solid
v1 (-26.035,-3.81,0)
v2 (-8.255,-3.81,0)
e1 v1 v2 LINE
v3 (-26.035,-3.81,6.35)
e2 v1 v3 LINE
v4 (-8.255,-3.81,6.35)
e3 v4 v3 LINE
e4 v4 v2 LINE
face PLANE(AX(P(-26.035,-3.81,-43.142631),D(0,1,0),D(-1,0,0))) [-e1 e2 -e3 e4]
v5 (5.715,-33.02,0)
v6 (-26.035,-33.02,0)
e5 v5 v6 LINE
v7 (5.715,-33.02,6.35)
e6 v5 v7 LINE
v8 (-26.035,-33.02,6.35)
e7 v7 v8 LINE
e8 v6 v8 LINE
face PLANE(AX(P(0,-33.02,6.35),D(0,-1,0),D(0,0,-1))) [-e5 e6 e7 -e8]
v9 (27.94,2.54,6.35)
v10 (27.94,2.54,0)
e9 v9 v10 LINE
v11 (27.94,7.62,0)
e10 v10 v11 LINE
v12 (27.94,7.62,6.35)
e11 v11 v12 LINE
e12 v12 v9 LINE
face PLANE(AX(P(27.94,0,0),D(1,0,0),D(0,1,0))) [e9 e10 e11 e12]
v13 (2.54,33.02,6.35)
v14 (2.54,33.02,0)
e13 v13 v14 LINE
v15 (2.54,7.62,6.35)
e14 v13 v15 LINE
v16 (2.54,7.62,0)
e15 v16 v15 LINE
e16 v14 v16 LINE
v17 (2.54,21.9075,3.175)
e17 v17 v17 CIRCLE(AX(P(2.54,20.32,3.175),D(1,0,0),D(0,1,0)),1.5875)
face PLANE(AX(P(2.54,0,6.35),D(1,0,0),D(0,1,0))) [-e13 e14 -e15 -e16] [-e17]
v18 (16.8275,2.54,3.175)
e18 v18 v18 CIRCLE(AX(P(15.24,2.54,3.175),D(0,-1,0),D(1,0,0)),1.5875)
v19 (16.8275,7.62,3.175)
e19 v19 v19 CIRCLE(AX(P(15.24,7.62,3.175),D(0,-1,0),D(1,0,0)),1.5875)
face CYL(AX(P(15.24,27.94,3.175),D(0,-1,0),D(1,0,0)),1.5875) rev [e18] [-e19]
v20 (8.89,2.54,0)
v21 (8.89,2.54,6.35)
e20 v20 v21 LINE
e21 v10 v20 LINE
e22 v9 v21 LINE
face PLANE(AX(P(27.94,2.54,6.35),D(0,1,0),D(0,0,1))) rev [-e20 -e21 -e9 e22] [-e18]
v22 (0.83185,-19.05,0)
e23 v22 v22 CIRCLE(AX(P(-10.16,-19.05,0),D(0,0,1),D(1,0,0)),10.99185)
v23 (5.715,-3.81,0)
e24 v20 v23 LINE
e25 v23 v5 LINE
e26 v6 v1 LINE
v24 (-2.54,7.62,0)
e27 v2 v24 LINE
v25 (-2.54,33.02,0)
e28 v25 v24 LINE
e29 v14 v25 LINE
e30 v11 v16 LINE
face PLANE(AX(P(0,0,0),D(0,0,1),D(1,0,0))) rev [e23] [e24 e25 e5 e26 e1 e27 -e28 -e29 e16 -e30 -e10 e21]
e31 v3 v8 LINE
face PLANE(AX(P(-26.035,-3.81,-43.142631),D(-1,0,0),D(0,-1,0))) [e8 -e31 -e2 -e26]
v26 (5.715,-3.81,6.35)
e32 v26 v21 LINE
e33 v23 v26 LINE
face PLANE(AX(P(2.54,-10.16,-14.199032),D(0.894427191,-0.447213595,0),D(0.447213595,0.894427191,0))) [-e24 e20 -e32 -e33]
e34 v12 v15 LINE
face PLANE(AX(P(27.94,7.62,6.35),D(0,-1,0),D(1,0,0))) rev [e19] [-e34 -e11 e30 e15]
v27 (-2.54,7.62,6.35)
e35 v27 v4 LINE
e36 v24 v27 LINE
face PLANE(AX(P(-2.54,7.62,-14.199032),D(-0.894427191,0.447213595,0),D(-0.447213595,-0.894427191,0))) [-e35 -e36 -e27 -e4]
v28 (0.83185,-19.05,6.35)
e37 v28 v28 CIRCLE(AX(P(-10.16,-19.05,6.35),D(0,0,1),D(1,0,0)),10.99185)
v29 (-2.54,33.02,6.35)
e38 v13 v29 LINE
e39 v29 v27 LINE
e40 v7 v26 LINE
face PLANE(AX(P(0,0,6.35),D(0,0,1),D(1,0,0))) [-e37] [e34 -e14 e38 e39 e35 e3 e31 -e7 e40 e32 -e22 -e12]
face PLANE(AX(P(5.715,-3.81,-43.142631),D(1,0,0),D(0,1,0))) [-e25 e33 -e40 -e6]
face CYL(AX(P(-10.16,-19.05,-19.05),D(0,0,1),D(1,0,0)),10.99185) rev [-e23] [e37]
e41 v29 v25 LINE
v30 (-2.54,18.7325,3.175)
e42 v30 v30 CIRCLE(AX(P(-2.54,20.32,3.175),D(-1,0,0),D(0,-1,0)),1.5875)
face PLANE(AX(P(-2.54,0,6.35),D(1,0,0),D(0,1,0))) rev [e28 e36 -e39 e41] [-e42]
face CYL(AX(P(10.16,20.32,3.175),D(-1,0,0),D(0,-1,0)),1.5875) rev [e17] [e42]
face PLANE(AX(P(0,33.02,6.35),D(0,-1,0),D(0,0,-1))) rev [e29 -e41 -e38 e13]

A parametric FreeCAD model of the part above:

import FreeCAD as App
import Part
import Sketcher
from FreeCAD import Vector
Q = App.Units.Quantity


def add_polygon(sketch, points):
    """Adds a closed chain of lines whose ends are joined by coincident constraints."""
    first, n = sketch.GeometryCount, len(points)
    for a, b in zip(points, points[1:] + points[:1]):
        sketch.addGeometry(Part.LineSegment(App.Vector(*a, 0), App.Vector(*b, 0)), False)
    for i in range(n):
        sketch.addConstraint(Sketcher.Constraint("Coincident", first + i, 2, first + (i + 1) % n, 1))

doc = App.newDocument("Part")
body = doc.addObject("PartDesign::Body", "Body")

# Sketch on XY plane
sketch1 = body.newObject("Sketcher::SketchObject", "Sketch")
sketch1.AttachmentSupport = (doc.getObject("XY_Plane"), [""])
sketch1.MapMode = "FlatFace"
add_polygon(sketch1, [(-30.48, -5.08), (-30.48, -33.02), (2.54, -33.02), (2.54, 33.02), (-2.54, 33.02), (-2.54, -5.08)])  # lines 0-5
sketch1.addConstraint(Sketcher.Constraint("Vertical", 0))
sketch1.addConstraint(Sketcher.Constraint("Horizontal", 1))
sketch1.addConstraint(Sketcher.Constraint("Vertical", 2))
sketch1.addConstraint(Sketcher.Constraint("Horizontal", 3))
sketch1.addConstraint(Sketcher.Constraint("Vertical", 4))
sketch1.addConstraint(Sketcher.Constraint("Horizontal", 5))
sketch1.addConstraint(Sketcher.Constraint("Symmetric", 1, 2, 3, 2, -1, 1))
sketch1.addConstraint(Sketcher.Constraint("Equal", 5, 0))
sketch1.addConstraint(Sketcher.Constraint("DistanceX", 1, 1, 1, 2, Q("1.3 in")))
sketch1.addConstraint(Sketcher.Constraint("DistanceX", 3, 2, 3, 1, Q("0.2 in")))
sketch1.addConstraint(Sketcher.Constraint("DistanceY", 2, 1, 2, 2, Q("2.6 in")))
pad1 = body.newObject("PartDesign::Pad", "Pad")
pad1.Profile = sketch1
pad1.Length = Q("0.25 in")

# Sketch on YZ plane
sketch2 = body.newObject("Sketcher::SketchObject", "Sketch001")
sketch2.AttachmentSupport = (doc.getObject("YZ_Plane"), [""])
sketch2.MapMode = "FlatFace"
sketch2.AttachmentOffset = App.Placement(Vector(0, 0, -0.1 * 25.4), App.Rotation())
sketch2.addGeometry(Part.Circle(Vector(20.32, 3.175, 0), Vector(0, 0, 1), 1.5875), False)
sketch2.addConstraint(Sketcher.Constraint("Diameter", 0, Q("0.125 in")))
sketch2.addConstraint(Sketcher.Constraint("DistanceX", -1, 1, 0, 3, Q("0.8 in")))
sketch2.addConstraint(Sketcher.Constraint("DistanceY", -1, 1, 0, 3, Q("0.125 in")))
pocket1 = body.newObject("PartDesign::Pocket", "Pocket")
pocket1.Profile = sketch2
pocket1.Length = Q("0.5 in")
pocket1.Reversed = True

# Sketch on YZ plane
sketch3 = body.newObject("Sketcher::SketchObject", "Sketch002")
sketch3.AttachmentSupport = (doc.getObject("YZ_Plane"), [""])
sketch3.MapMode = "FlatFace"
sketch3.AttachmentOffset = App.Placement(Vector(0, 0, 0.1 * 25.4), App.Rotation())
add_polygon(sketch3, [(7.62, 6.35), (2.54, 6.35), (2.54, 0), (7.62, 0)])  # lines 0-3
sketch3.addConstraint(Sketcher.Constraint("Horizontal", 0))
sketch3.addConstraint(Sketcher.Constraint("Vertical", 1))
sketch3.addConstraint(Sketcher.Constraint("Horizontal", 2))
sketch3.addConstraint(Sketcher.Constraint("Vertical", 3))
sketch3.addConstraint(Sketcher.Constraint("PointOnObject", 1, 2, -1))
sketch3.addConstraint(Sketcher.Constraint("DistanceX", 0, 2, 0, 1, Q("0.2 in")))
sketch3.addConstraint(Sketcher.Constraint("DistanceY", 1, 2, 1, 1, Q("0.25 in")))
sketch3.addConstraint(Sketcher.Constraint("DistanceX", -1, 1, 0, 2, Q("0.1 in")))
pad2 = body.newObject("PartDesign::Pad", "Pad001")
pad2.Profile = sketch3
pad2.Length = Q("1 in")

# Sketch on XZ plane
sketch4 = body.newObject("Sketcher::SketchObject", "Sketch003")
sketch4.AttachmentSupport = (doc.getObject("XZ_Plane"), [""])
sketch4.MapMode = "FlatFace"
sketch4.AttachmentOffset = App.Placement(Vector(0, 0, -0.1 * 25.4), App.Rotation())
sketch4.addGeometry(Part.Circle(Vector(15.24, 3.175, 0), Vector(0, 0, 1), 1.5875), False)
sketch4.addConstraint(Sketcher.Constraint("Diameter", 0, Q("0.125 in")))
sketch4.addConstraint(Sketcher.Constraint("DistanceX", -1, 1, 0, 3, Q("0.6 in")))
sketch4.addConstraint(Sketcher.Constraint("DistanceY", -1, 1, 0, 3, Q("0.125 in")))
pocket2 = body.newObject("PartDesign::Pocket", "Pocket001")
pocket2.Profile = sketch4
pocket2.Length = Q("1 in")

# Sketch on XY plane
sketch5 = body.newObject("Sketcher::SketchObject", "Sketch004")
sketch5.AttachmentSupport = (doc.getObject("XY_Plane"), [""])
sketch5.MapMode = "FlatFace"
sketch5.AttachmentOffset = App.Placement(Vector(0, 0, 0.25 * 25.4), App.Rotation())
sketch5.addGeometry(Part.Circle(Vector(-10.16, -19.05, 0), Vector(0, 0, 1), 10.99185), False)
sketch5.addConstraint(Sketcher.Constraint("Diameter", 0, Q("0.8655 in")))
sketch5.addConstraint(Sketcher.Constraint("DistanceX", 0, 3, -1, 1, Q("0.4 in")))
sketch5.addConstraint(Sketcher.Constraint("DistanceY", 0, 3, -1, 1, Q("0.75 in")))
pocket3 = body.newObject("PartDesign::Pocket", "Pocket002")
pocket3.Profile = sketch5
pocket3.Length = Q("1 in")

# Sketch on XY plane
sketch6 = body.newObject("Sketcher::SketchObject", "Sketch005")
sketch6.AttachmentSupport = (doc.getObject("XY_Plane"), [""])
sketch6.MapMode = "FlatFace"
sketch6.AttachmentOffset = App.Placement(Vector(0, 0, 0.25 * 25.4), App.Rotation())
add_polygon(sketch6, [(-2.54, 7.62), (-8.89, -5.08), (-2.54, -5.08)])  # lines 0-2
add_polygon(sketch6, [(2.54, 2.54), (2.54, -10.16), (8.89, 2.54)])  # lines 3-5
sketch6.addConstraint(Sketcher.Constraint("Horizontal", 1))
sketch6.addConstraint(Sketcher.Constraint("Vertical", 2))
sketch6.addConstraint(Sketcher.Constraint("Vertical", 3))
sketch6.addConstraint(Sketcher.Constraint("Horizontal", 5))
sketch6.addConstraint(Sketcher.Constraint("Parallel", 0, 4))
sketch6.addConstraint(Sketcher.Constraint("Equal", 1, 5))
sketch6.addConstraint(Sketcher.Constraint("DistanceY", 2, 1, 2, 2, Q("0.5 in")))
sketch6.addConstraint(Sketcher.Constraint("DistanceX", 1, 1, 1, 2, Q("0.25 in")))
sketch6.addConstraint(Sketcher.Constraint("DistanceY", 0, 2, -1, 1, Q("0.2 in")))
sketch6.addConstraint(Sketcher.Constraint("DistanceX", 1, 2, -1, 1, Q("0.1 in")))
sketch6.addConstraint(Sketcher.Constraint("DistanceX", -1, 1, 3, 2, Q("0.1 in")))
sketch6.addConstraint(Sketcher.Constraint("DistanceY", 3, 2, -1, 1, Q("0.4 in")))
pad3 = body.newObject("PartDesign::Pad", "Pad002")
pad3.Profile = sketch6
pad3.Length = Q("0.25 in")
pad3.Reversed = True

# Sketch on XY plane
sketch7 = body.newObject("Sketcher::SketchObject", "Sketch006")
sketch7.AttachmentSupport = (doc.getObject("XY_Plane"), [""])
sketch7.MapMode = "FlatFace"
sketch7.AttachmentOffset = App.Placement(Vector(0, 0, 0.25 * 25.4), App.Rotation())
add_polygon(sketch7, [(-26.035, -3.81), (-26.035, -33.02), (5.715, -33.02), (5.715, -3.81)])  # lines 0-3
sketch7.addGeometry(Part.Circle(Vector(-10.16, -19.05, 0), Vector(0, 0, 1), 10.99185), False)  # 4
sketch7.addConstraint(Sketcher.Constraint("Vertical", 0))
sketch7.addConstraint(Sketcher.Constraint("Horizontal", 1))
sketch7.addConstraint(Sketcher.Constraint("Vertical", 2))
sketch7.addConstraint(Sketcher.Constraint("Horizontal", 3))
sketch7.addConstraint(Sketcher.Constraint("Diameter", 4, Q("0.8655 in")))
sketch7.addConstraint(Sketcher.Constraint("DistanceX", 1, 1, 1, 2, Q("1.25 in")))
sketch7.addConstraint(Sketcher.Constraint("DistanceY", 0, 2, 0, 1, Q("1.15 in")))
sketch7.addConstraint(Sketcher.Constraint("DistanceX", 4, 3, -1, 1, Q("0.4 in")))
sketch7.addConstraint(Sketcher.Constraint("DistanceY", 0, 2, -1, 1, Q("1.3 in")))
sketch7.addConstraint(Sketcher.Constraint("DistanceY", 4, 3, 2, 2, Q("0.6 in")))
sketch7.addConstraint(Sketcher.Constraint("DistanceX", 0, 2, -1, 1, Q("1.025 in")))
pad4 = body.newObject("PartDesign::Pad", "Pad003")
pad4.Profile = sketch7
pad4.Length = Q("0.25 in")
pad4.Reversed = True

# Sketch on XY plane
sketch8 = body.newObject("Sketcher::SketchObject", "Sketch007")
sketch8.AttachmentSupport = (doc.getObject("XY_Plane"), [""])
sketch8.MapMode = "FlatFace"
sketch8.AttachmentOffset = App.Placement(Vector(0, 0, 0.25 * 25.4), App.Rotation())
add_polygon(sketch8, [(-30.48, -5.08), (-30.48, -33.02), (-26.035, -33.02), (-26.035, -5.08)])  # lines 0-3
sketch8.addConstraint(Sketcher.Constraint("Vertical", 0))
sketch8.addConstraint(Sketcher.Constraint("Horizontal", 1))
sketch8.addConstraint(Sketcher.Constraint("Vertical", 2))
sketch8.addConstraint(Sketcher.Constraint("Horizontal", 3))
sketch8.addConstraint(Sketcher.Constraint("DistanceY", 0, 2, 0, 1, Q("1.1 in")))
sketch8.addConstraint(Sketcher.Constraint("DistanceX", 0, 2, -1, 1, Q("1.2 in")))
sketch8.addConstraint(Sketcher.Constraint("DistanceY", 0, 2, -1, 1, Q("1.3 in")))
sketch8.addConstraint(Sketcher.Constraint("DistanceX", 1, 1, 1, 2, Q("0.175 in")))
pocket4 = body.newObject("PartDesign::Pocket", "Pocket003")
pocket4.Profile = sketch8
pocket4.Length = Q("0.25 in")

doc.recompute()
